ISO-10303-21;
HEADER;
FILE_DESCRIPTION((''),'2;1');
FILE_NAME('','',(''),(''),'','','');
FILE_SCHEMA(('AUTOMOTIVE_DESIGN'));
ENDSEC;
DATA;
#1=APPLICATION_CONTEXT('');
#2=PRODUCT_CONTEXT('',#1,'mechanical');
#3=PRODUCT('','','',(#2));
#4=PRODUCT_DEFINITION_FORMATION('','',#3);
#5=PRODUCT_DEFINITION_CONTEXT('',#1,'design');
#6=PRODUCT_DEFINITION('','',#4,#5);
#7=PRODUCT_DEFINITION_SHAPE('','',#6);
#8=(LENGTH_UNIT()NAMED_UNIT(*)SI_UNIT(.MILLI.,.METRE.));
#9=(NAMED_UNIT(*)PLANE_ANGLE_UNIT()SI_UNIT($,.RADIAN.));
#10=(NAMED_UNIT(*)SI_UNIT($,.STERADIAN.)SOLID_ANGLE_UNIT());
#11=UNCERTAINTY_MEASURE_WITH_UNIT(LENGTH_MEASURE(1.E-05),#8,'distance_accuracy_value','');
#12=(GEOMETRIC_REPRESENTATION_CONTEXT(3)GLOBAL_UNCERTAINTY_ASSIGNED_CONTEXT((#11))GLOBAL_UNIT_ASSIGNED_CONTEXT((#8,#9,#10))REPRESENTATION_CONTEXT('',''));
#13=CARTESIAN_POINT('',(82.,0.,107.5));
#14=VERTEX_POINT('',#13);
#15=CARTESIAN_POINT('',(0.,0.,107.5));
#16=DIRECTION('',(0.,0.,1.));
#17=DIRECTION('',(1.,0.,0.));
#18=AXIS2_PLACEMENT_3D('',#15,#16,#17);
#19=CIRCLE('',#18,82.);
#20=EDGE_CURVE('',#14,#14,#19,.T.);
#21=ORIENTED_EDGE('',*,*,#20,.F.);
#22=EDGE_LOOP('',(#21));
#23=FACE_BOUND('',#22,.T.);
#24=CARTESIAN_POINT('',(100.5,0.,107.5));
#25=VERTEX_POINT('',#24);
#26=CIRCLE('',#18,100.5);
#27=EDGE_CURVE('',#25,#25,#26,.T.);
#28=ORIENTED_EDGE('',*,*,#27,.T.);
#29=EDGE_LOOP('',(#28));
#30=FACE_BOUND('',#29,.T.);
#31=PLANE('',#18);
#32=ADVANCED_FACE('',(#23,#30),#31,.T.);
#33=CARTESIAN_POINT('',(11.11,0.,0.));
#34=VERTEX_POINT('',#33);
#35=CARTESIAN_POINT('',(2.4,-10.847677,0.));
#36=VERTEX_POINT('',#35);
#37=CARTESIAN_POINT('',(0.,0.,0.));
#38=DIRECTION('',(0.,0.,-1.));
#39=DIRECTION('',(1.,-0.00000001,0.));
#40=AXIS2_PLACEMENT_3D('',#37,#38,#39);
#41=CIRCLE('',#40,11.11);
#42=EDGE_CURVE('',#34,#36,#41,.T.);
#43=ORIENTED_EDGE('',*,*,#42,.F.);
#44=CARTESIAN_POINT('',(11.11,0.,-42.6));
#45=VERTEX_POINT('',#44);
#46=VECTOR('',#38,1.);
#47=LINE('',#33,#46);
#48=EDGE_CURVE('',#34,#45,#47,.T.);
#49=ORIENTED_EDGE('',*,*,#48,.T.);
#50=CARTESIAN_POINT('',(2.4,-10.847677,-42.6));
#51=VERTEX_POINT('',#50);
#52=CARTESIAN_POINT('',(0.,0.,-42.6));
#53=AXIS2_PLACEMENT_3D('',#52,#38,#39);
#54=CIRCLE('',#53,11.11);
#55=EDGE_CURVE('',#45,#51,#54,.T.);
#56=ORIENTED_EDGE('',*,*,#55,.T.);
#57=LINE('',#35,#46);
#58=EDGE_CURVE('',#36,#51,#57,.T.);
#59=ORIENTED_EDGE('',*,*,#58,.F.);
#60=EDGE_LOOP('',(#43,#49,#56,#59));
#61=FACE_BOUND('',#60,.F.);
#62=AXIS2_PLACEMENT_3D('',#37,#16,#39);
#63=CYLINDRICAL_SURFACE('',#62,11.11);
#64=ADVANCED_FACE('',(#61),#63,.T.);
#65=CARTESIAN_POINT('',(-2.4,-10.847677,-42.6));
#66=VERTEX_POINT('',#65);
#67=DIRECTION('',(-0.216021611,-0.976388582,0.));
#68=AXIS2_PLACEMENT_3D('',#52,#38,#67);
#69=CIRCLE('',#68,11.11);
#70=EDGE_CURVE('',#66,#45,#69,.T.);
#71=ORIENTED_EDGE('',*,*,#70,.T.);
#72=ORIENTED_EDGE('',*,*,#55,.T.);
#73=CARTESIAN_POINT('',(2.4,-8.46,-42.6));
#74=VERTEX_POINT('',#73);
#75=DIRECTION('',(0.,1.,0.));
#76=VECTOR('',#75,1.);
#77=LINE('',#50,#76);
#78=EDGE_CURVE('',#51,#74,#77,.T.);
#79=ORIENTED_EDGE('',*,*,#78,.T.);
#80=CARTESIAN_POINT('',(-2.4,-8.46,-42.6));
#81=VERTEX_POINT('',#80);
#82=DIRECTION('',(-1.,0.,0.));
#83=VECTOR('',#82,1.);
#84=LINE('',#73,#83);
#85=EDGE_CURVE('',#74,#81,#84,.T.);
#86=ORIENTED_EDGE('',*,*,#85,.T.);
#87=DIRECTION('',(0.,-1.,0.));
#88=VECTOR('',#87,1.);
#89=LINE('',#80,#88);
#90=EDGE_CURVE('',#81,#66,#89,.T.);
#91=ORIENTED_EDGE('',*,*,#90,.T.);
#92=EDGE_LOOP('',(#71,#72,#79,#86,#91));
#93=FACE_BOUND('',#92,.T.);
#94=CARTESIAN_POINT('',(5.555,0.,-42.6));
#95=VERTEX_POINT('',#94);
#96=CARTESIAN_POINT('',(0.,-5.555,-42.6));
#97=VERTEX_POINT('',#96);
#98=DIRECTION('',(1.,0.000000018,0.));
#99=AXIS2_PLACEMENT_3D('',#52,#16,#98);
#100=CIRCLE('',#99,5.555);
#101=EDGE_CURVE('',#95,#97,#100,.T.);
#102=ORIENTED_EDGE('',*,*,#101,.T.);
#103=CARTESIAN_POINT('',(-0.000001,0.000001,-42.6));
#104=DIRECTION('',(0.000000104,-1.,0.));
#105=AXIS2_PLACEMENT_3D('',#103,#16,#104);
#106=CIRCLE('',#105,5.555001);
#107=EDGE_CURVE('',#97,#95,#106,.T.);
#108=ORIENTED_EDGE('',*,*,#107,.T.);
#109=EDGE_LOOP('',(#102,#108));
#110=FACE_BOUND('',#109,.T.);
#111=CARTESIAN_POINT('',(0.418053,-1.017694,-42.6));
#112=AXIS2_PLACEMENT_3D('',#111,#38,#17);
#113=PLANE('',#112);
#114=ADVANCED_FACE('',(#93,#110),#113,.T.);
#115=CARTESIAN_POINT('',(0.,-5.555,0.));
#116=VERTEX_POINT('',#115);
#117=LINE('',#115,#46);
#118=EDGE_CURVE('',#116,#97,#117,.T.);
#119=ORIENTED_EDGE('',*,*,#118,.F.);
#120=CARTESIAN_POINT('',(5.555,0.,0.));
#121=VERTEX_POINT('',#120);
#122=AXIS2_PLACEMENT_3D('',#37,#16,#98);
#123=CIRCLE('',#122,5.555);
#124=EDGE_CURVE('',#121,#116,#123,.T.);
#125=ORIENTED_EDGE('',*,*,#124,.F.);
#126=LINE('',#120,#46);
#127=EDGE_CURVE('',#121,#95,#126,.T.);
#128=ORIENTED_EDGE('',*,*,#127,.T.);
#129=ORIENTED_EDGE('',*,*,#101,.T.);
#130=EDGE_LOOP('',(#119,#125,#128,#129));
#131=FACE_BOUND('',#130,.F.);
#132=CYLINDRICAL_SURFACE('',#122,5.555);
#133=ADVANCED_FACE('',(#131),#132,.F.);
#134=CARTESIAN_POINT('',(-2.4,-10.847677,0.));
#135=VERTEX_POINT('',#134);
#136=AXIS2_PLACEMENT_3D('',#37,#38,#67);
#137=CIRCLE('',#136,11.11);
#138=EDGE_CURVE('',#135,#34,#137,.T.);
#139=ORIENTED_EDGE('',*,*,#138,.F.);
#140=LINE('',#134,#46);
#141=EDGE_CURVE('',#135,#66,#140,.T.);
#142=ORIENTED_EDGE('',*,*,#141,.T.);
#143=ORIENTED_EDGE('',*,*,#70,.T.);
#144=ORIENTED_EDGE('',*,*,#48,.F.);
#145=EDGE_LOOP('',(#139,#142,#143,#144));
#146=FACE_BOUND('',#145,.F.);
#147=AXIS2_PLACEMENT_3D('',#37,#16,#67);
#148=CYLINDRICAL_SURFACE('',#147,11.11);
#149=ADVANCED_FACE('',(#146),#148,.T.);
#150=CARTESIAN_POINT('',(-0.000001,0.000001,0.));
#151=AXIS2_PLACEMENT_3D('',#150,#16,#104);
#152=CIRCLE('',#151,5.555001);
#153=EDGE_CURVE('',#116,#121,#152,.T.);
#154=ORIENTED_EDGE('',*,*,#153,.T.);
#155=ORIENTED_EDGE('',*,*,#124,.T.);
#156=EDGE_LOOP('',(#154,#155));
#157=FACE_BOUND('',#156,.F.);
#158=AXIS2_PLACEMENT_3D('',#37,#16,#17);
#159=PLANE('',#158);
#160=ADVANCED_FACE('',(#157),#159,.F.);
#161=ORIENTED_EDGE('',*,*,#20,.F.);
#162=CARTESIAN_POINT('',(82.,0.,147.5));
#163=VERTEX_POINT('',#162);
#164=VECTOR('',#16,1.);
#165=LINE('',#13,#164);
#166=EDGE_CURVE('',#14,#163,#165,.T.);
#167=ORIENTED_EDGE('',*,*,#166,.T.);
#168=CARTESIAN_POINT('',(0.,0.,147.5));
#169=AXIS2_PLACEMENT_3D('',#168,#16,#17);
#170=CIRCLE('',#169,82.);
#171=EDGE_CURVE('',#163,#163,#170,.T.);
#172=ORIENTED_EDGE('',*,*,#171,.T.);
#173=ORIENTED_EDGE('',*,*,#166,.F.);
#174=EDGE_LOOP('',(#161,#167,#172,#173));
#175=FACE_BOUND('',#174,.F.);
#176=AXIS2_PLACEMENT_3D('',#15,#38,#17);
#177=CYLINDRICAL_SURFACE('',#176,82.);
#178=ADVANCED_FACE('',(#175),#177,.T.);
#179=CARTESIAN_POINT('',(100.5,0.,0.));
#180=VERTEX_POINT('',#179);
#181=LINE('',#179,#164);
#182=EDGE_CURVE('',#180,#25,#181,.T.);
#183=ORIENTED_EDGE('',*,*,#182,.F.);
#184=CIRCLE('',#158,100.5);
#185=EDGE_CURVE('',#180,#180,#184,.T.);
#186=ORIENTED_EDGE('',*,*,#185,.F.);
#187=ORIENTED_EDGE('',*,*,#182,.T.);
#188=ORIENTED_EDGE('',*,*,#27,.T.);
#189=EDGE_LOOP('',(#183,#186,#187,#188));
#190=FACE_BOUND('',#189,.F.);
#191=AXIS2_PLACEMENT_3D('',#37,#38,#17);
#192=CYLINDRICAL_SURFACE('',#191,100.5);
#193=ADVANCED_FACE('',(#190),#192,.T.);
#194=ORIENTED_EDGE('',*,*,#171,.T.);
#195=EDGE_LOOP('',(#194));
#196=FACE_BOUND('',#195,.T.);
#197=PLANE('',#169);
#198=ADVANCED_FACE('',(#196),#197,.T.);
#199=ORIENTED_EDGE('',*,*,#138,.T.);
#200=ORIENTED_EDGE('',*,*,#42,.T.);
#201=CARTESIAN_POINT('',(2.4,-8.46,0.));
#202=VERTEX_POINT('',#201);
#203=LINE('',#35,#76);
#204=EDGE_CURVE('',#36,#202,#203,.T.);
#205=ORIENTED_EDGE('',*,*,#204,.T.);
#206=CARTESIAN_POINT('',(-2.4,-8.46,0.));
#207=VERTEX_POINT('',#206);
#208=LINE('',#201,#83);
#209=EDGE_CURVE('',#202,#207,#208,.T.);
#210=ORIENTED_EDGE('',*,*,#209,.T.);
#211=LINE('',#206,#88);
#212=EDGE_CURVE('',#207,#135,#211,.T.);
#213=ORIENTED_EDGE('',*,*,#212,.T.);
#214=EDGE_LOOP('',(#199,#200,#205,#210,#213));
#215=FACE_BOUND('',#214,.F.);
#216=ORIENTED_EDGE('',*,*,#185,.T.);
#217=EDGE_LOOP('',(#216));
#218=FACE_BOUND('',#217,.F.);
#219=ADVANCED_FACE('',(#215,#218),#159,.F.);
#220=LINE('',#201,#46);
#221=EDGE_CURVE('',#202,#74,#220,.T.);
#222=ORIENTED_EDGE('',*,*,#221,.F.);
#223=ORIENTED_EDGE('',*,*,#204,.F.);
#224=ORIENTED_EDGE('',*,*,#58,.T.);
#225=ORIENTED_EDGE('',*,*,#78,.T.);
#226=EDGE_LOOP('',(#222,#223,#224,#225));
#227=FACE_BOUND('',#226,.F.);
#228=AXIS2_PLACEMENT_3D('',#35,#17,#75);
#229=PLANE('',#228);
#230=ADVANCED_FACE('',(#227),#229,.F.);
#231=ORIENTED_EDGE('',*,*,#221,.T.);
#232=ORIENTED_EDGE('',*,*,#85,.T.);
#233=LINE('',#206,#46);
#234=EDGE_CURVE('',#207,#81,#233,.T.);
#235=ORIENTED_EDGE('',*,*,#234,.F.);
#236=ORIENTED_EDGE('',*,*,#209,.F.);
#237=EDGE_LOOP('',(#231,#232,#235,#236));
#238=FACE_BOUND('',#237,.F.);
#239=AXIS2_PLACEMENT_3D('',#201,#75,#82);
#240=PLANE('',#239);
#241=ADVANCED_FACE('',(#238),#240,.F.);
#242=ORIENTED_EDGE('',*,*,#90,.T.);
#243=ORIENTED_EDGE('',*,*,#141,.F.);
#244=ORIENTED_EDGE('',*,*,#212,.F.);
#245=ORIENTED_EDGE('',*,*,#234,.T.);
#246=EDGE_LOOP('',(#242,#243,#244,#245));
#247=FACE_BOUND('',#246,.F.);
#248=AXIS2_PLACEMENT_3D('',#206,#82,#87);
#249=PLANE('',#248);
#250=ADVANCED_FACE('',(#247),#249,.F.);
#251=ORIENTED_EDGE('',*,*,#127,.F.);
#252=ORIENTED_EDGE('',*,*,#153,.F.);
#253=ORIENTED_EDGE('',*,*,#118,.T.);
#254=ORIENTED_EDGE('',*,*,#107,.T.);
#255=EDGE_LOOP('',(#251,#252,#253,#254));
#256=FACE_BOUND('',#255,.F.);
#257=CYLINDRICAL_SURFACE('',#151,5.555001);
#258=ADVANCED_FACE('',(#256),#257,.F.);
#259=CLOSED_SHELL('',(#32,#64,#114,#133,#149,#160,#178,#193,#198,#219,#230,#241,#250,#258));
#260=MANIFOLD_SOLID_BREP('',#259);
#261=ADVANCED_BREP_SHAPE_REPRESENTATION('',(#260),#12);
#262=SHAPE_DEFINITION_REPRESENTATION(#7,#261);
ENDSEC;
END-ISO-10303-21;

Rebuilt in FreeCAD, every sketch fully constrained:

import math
import FreeCAD as App
import Part
import Sketcher
from FreeCAD import Vector

doc = App.newDocument("Part")
params = doc.addObject("Spreadsheet::Sheet", "Params")
for row, (alias, value) in enumerate([
    ("sketch1_diameter", "201 mm"),
    ("pad1_length", "107.5 mm"),
    ("sketch2_diameter", "164 mm"),
    ("pad2_length", "40 mm"),
    ("sketch3_radius", "11.11 mm"),
    ("sketch3_width", "4.8 mm"),
    ("pad3_length", "42.6 mm"),
], start=1):
    params.set(f"A{row}", alias)
    params.set(f"B{row}", "=" + value)
    params.setAlias(f"B{row}", alias)

body = doc.addObject("PartDesign::Body", "Body")

# Sketch on XY plane
sketch1 = body.newObject("Sketcher::SketchObject", "Sketch")
sketch1.AttachmentSupport = (doc.getObject("XY_Plane"), [""])
sketch1.MapMode = "FlatFace"
sketch1.addGeometry(Part.Circle(Vector(0, 0, 0), Vector(0, 0, 1), 100), False)
sketch1.addConstraint([
    Sketcher.Constraint("Coincident", 0, 3, -1, 1),
    Sketcher.Constraint("Diameter", 0, 201.0),
])
sketch1.setExpression("Constraints[1]", "Params.sketch1_diameter")
pad1 = body.newObject("PartDesign::Pad", "Pad")
pad1.Profile = sketch1
pad1.setExpression("Length", "Params.pad1_length")

# Sketch on XY plane
sketch2 = body.newObject("Sketcher::SketchObject", "Sketch001")
sketch2.AttachmentSupport = (doc.getObject("XY_Plane"), [""])
sketch2.MapMode = "FlatFace"
sketch2.AttachmentOffset = App.Placement(Vector(0, 0, 107.5), App.Rotation())
sketch2.addGeometry(Part.Circle(Vector(0, 0, 0), Vector(0, 0, 1), 82), False)
sketch2.addConstraint([
    Sketcher.Constraint("Coincident", 0, 3, -1, 1),
    Sketcher.Constraint("Diameter", 0, 164.0),
])
sketch2.setExpression("Constraints[1]", "Params.sketch2_diameter")
pad2 = body.newObject("PartDesign::Pad", "Pad001")
pad2.Profile = sketch2
pad2.setExpression("Length", "Params.pad2_length")

# Sketch on XY plane
sketch3 = body.newObject("Sketcher::SketchObject", "Sketch002")
sketch3.AttachmentSupport = (doc.getObject("XY_Plane"), [""])
sketch3.MapMode = "FlatFace"
sketch3.addGeometry([
    Part.ArcOfCircle(Part.Circle(Vector(0, 0, 0), Vector(0, 0, 1), 11.1), math.radians(0), math.radians(258)),  # 0
    Part.ArcOfCircle(Part.Circle(Vector(0, 0, 0), Vector(0, 0, 1), 11.1), math.radians(-78), math.radians(0)),  # 1
    Part.LineSegment(Vector(2.4, -10.8, 0), Vector(2.4, -8.5, 0)),  # 2
    Part.LineSegment(Vector(2.4, -8.5, 0), Vector(-2.4, -8.5, 0)),  # 3
    Part.LineSegment(Vector(-2.4, -8.5, 0), Vector(-2.4, -10.8, 0)),  # 4
    Part.ArcOfCircle(Part.Circle(Vector(0, 0, 0), Vector(0, 0, 1), 5.6), math.radians(-90), math.radians(0)),  # 5
    Part.ArcOfCircle(Part.Circle(Vector(0, 0, 0), Vector(0, 0, 1), 5.6), math.radians(0), math.radians(270)),  # 6
], False)
sketch3.addConstraint([
    Sketcher.Constraint("Tangent", 0, 1, 1, 2),
    Sketcher.Constraint("Coincident", 1, 1, 2, 1),
    Sketcher.Constraint("Coincident", 2, 2, 3, 1),
    Sketcher.Constraint("Coincident", 3, 2, 4, 1),
    Sketcher.Constraint("Coincident", 4, 2, 0, 2),
    Sketcher.Constraint("Tangent", 5, 1, 6, 2),
    Sketcher.Constraint("Coincident", 6, 1, 5, 2),
    Sketcher.Constraint("Vertical", 2),
    Sketcher.Constraint("Horizontal", 3),
    Sketcher.Constraint("Vertical", 4),
    Sketcher.Constraint("Coincident", 0, 3, -1, 1),
    Sketcher.Constraint("Coincident", 5, 3, -1, 1),
    Sketcher.Constraint("Equal", 0, 1),
    Sketcher.Constraint("PointOnObject", 0, 1, -1),
    Sketcher.Constraint("PointOnObject", 5, 1, -2),
    Sketcher.Constraint("PointOnObject", 6, 1, -1),
    Sketcher.Constraint("Horizontal", 1, 1, 4, 2),
    Sketcher.Constraint("Radius", 0, 11.11),
    Sketcher.Constraint("DistanceX", 3, 2, 3, 1, 4.8),
    Sketcher.Constraint("Radius", 5, 5.555001),
    Sketcher.Constraint("DistanceY", 2, 2, -1, 1, 8.46),
])
sketch3.setExpression("Constraints[17]", "Params.sketch3_radius")
sketch3.setExpression("Constraints[18]", "Params.sketch3_width")
pad3 = body.newObject("PartDesign::Pad", "Pad002")
pad3.Profile = sketch3
pad3.setExpression("Length", "Params.pad3_length")
pad3.Reversed = True

doc.recompute()
